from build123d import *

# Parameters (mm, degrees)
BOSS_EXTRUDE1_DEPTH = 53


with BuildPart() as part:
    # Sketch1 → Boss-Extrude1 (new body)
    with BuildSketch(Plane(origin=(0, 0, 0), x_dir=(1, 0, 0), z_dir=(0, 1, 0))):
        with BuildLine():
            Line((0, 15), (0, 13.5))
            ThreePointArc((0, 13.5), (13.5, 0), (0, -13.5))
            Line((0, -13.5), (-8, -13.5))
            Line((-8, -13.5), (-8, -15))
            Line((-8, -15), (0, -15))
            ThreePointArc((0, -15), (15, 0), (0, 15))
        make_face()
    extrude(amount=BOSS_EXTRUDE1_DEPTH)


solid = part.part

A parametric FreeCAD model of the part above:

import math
import FreeCAD as App
import Part
import Sketcher

doc = App.newDocument("Part")
body = doc.addObject("PartDesign::Body", "Body")

# Sketch on XZ plane
sketch1 = doc.addObject("Sketcher::SketchObject", "Sketch")
body.addObject(sketch1)
sketch1.AttachmentSupport = (doc.XZ_Plane, [""])
sketch1.MapMode = "FlatFace"
sketch1.addGeometry([
    Part.LineSegment(App.Vector(0, -15, 0), App.Vector(0, -13.5, 0)),  # 0
    Part.ArcOfCircle(Part.Circle(App.Vector(0, 0, 0), App.Vector(0, 0, 1), 13.5), math.radians(-90), math.radians(90)),  # 1
    Part.LineSegment(App.Vector(0, 13.5, 0), App.Vector(-8, 13.5, 0)),  # 2
    Part.LineSegment(App.Vector(-8, 13.5, 0), App.Vector(-8, 15, 0)),  # 3
    Part.LineSegment(App.Vector(-8, 15, 0), App.Vector(0, 15, 0)),  # 4
    Part.ArcOfCircle(Part.Circle(App.Vector(0, 0, 0), App.Vector(0, 0, 1), 15), math.radians(-90), math.radians(90)),  # 5
], False)
sketch1.addConstraint([
    Sketcher.Constraint("Coincident", 0, 2, 1, 1),
    Sketcher.Constraint("Tangent", 1, 2, 2, 1),
    Sketcher.Constraint("Coincident", 2, 2, 3, 1),
    Sketcher.Constraint("Coincident", 3, 2, 4, 1),
    Sketcher.Constraint("Tangent", 4, 2, 5, 2),
    Sketcher.Constraint("Coincident", 5, 1, 0, 1),
    Sketcher.Constraint("Vertical", 0),
    Sketcher.Constraint("Horizontal", 2),
    Sketcher.Constraint("Vertical", 3),
    Sketcher.Constraint("Horizontal", 4),
    Sketcher.Constraint("Coincident", 1, 3, -1, 1),
    Sketcher.Constraint("Coincident", 5, 3, -1, 1),
    Sketcher.Constraint("PointOnObject", 0, 2, -2),
    Sketcher.Constraint("Radius", 5, 15.0),
    Sketcher.Constraint("Radius", 1, 13.5),
    Sketcher.Constraint("DistanceX", 2, 2, 2, 1, 8.0),
])
pad1 = doc.addObject("PartDesign::Pad", "Pad")
body.addObject(pad1)
pad1.Profile = sketch1
pad1.Length = 53
pad1.Reversed = True

doc.recompute()
